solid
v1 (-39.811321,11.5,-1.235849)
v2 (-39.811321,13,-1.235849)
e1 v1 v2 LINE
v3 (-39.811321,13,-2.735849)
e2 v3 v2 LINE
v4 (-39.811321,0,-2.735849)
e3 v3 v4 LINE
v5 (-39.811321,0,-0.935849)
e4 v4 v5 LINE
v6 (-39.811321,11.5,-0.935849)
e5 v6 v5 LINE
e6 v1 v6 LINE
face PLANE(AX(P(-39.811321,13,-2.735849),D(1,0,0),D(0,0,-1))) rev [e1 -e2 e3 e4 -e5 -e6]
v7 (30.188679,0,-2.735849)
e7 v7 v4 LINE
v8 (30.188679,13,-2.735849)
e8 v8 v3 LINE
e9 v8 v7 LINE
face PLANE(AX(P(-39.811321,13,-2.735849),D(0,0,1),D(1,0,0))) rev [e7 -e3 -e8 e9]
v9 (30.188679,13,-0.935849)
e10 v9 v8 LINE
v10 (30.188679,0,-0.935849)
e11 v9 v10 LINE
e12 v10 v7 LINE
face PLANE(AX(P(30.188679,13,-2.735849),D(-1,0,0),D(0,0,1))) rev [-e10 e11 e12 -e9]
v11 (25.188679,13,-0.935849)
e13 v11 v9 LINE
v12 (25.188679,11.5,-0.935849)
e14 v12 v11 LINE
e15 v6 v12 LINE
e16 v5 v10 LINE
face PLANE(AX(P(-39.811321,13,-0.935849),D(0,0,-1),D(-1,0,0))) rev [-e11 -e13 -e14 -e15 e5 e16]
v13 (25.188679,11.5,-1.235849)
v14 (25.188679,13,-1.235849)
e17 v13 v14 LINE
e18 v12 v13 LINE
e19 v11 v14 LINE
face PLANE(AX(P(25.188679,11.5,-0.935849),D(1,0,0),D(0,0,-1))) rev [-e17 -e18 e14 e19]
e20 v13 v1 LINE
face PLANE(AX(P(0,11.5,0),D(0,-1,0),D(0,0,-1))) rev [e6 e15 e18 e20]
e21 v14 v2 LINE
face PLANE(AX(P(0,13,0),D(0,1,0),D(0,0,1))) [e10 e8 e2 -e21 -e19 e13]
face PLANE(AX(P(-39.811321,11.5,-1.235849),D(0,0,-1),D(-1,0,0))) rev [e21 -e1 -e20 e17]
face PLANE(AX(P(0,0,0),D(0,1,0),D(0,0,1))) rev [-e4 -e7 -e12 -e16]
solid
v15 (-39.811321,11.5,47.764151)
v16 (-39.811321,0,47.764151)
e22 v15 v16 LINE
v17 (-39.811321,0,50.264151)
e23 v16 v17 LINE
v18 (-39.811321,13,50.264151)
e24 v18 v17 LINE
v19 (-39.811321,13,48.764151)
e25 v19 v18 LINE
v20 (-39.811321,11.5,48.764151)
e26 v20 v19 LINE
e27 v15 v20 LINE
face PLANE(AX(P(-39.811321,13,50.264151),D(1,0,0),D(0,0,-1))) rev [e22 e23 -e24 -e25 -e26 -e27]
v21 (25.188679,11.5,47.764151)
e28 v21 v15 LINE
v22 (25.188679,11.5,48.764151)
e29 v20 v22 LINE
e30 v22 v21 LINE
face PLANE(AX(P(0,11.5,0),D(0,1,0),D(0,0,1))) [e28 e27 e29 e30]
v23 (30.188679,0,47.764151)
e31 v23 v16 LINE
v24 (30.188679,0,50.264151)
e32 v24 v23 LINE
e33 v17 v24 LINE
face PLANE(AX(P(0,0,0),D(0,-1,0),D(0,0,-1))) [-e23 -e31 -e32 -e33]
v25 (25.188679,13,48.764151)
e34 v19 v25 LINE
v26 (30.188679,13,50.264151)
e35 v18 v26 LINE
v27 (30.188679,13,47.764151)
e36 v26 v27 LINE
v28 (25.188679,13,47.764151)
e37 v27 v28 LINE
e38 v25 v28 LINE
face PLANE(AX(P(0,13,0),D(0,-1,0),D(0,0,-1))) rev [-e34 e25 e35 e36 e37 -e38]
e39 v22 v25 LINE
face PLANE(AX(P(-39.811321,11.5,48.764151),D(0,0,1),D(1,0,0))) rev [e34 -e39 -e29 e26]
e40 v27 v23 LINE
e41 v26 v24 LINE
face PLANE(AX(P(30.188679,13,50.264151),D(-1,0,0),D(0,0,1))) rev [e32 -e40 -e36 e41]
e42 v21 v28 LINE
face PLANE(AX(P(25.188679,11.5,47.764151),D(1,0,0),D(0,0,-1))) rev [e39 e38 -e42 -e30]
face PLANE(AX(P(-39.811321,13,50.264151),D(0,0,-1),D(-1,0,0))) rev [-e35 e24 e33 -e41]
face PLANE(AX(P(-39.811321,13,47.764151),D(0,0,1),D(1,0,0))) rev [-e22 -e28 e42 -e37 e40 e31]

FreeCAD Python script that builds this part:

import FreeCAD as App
import Part
import Sketcher
Q = App.Units.Quantity


def add_polygon(sketch, points):
    """Adds a closed chain of lines whose ends are joined by coincident constraints."""
    first, n = sketch.GeometryCount, len(points)
    for a, b in zip(points, points[1:] + points[:1]):
        sketch.addGeometry(Part.LineSegment(App.Vector(*a, 0), App.Vector(*b, 0)), False)
    for i in range(n):
        sketch.addConstraint(Sketcher.Constraint("Coincident", first + i, 2, first + (i + 1) % n, 1))

doc = App.newDocument("Part")
body = doc.addObject("PartDesign::Body", "Body")

# Sketch on XZ plane
sketch1 = body.newObject("Sketcher::SketchObject", "Sketch")
sketch1.AttachmentSupport = (doc.getObject("XZ_Plane"), [""])
sketch1.MapMode = "FlatFace"
add_polygon(sketch1, [(-39.811321, -2.735849), (-39.811321, -0.935849), (30.188679, -0.935849), (30.188679, -2.735849)])  # lines 0-3
sketch1.addConstraint(Sketcher.Constraint("Vertical", 0))
sketch1.addConstraint(Sketcher.Constraint("Horizontal", 1))
sketch1.addConstraint(Sketcher.Constraint("Vertical", 2))
sketch1.addConstraint(Sketcher.Constraint("Horizontal", 3))
sketch1.addConstraint(Sketcher.Constraint("DistanceX", 1, 1, 1, 2, Q("70 mm")))
sketch1.addConstraint(Sketcher.Constraint("DistanceY", 0, 1, 0, 2, Q("1.8 mm")))
sketch1.addConstraint(Sketcher.Constraint("DistanceX", 0, 2, -1, 1, Q("39.811321 mm")))
sketch1.addConstraint(Sketcher.Constraint("DistanceY", 0, 2, -1, 1, Q("0.935849 mm")))
pad1 = body.newObject("PartDesign::Pad", "Pad")
pad1.Profile = sketch1
pad1.Length = 13
pad1.Reversed = True

# Sketch on XZ plane
sketch2 = body.newObject("Sketcher::SketchObject", "Sketch001")
sketch2.AttachmentSupport = (doc.getObject("XZ_Plane"), [""])
sketch2.MapMode = "FlatFace"
sketch2.AttachmentOffset = App.Placement(App.Vector(0, 0, -13), App.Rotation())
add_polygon(sketch2, [(-39.811321, -1.235849), (-39.811321, -0.935849), (25.188679, -0.935849), (25.188679, -1.235849)])  # lines 0-3
sketch2.addConstraint(Sketcher.Constraint("Vertical", 0))
sketch2.addConstraint(Sketcher.Constraint("Horizontal", 1))
sketch2.addConstraint(Sketcher.Constraint("Vertical", 2))
sketch2.addConstraint(Sketcher.Constraint("Horizontal", 3))
sketch2.addConstraint(Sketcher.Constraint("DistanceX", 1, 1, 1, 2, Q("65 mm")))
sketch2.addConstraint(Sketcher.Constraint("DistanceY", 0, 1, 0, 2, Q("0.3 mm")))
sketch2.addConstraint(Sketcher.Constraint("DistanceX", 0, 2, -1, 1, Q("39.811321 mm")))
sketch2.addConstraint(Sketcher.Constraint("DistanceY", 0, 2, -1, 1, Q("0.935849 mm")))
pocket1 = body.newObject("PartDesign::Pocket", "Pocket")
pocket1.Profile = sketch2
pocket1.Length = 1.5
pocket1.Reversed = True
body2 = doc.addObject("PartDesign::Body", "Body001")

# Sketch on XZ plane
sketch3 = body2.newObject("Sketcher::SketchObject", "Sketch002")
sketch3.AttachmentSupport = (doc.getObject("XZ_Plane001"), [""])
sketch3.MapMode = "FlatFace"
add_polygon(sketch3, [(-39.811321, 47.764151), (-39.811321, 50.264151), (30.188679, 50.264151), (30.188679, 47.764151)])  # lines 0-3
sketch3.addConstraint(Sketcher.Constraint("Vertical", 0))
sketch3.addConstraint(Sketcher.Constraint("Horizontal", 1))
sketch3.addConstraint(Sketcher.Constraint("Vertical", 2))
sketch3.addConstraint(Sketcher.Constraint("Horizontal", 3))
sketch3.addConstraint(Sketcher.Constraint("DistanceX", 1, 1, 1, 2, Q("70 mm")))
sketch3.addConstraint(Sketcher.Constraint("DistanceY", 0, 1, 0, 2, Q("2.5 mm")))
sketch3.addConstraint(Sketcher.Constraint("DistanceX", 0, 2, -1, 1, Q("39.811321 mm")))
sketch3.addConstraint(Sketcher.Constraint("DistanceY", -1, 1, 0, 2, Q("50.264151 mm")))
pad2 = body2.newObject("PartDesign::Pad", "Pad001")
pad2.Profile = sketch3
pad2.Length = 13
pad2.Reversed = True

# Sketch on XZ plane
sketch4 = body2.newObject("Sketcher::SketchObject", "Sketch003")
sketch4.AttachmentSupport = (doc.getObject("XZ_Plane001"), [""])
sketch4.MapMode = "FlatFace"
sketch4.AttachmentOffset = App.Placement(App.Vector(0, 0, -13), App.Rotation())
add_polygon(sketch4, [(-39.811321, 47.764151), (-39.811321, 48.764151), (25.188679, 48.764151), (25.188679, 47.764151)])  # lines 0-3
sketch4.addConstraint(Sketcher.Constraint("Vertical", 0))
sketch4.addConstraint(Sketcher.Constraint("Horizontal", 1))
sketch4.addConstraint(Sketcher.Constraint("Vertical", 2))
sketch4.addConstraint(Sketcher.Constraint("Horizontal", 3))
sketch4.addConstraint(Sketcher.Constraint("DistanceX", 1, 1, 1, 2, Q("65 mm")))
sketch4.addConstraint(Sketcher.Constraint("DistanceY", 0, 1, 0, 2, Q("1 mm")))
sketch4.addConstraint(Sketcher.Constraint("DistanceX", 0, 2, -1, 1, Q("39.811321 mm")))
sketch4.addConstraint(Sketcher.Constraint("DistanceY", -1, 1, 0, 2, Q("48.764151 mm")))
pocket2 = body2.newObject("PartDesign::Pocket", "Pocket001")
pocket2.Profile = sketch4
pocket2.Length = 1.5
pocket2.Reversed = True

doc.recompute()
